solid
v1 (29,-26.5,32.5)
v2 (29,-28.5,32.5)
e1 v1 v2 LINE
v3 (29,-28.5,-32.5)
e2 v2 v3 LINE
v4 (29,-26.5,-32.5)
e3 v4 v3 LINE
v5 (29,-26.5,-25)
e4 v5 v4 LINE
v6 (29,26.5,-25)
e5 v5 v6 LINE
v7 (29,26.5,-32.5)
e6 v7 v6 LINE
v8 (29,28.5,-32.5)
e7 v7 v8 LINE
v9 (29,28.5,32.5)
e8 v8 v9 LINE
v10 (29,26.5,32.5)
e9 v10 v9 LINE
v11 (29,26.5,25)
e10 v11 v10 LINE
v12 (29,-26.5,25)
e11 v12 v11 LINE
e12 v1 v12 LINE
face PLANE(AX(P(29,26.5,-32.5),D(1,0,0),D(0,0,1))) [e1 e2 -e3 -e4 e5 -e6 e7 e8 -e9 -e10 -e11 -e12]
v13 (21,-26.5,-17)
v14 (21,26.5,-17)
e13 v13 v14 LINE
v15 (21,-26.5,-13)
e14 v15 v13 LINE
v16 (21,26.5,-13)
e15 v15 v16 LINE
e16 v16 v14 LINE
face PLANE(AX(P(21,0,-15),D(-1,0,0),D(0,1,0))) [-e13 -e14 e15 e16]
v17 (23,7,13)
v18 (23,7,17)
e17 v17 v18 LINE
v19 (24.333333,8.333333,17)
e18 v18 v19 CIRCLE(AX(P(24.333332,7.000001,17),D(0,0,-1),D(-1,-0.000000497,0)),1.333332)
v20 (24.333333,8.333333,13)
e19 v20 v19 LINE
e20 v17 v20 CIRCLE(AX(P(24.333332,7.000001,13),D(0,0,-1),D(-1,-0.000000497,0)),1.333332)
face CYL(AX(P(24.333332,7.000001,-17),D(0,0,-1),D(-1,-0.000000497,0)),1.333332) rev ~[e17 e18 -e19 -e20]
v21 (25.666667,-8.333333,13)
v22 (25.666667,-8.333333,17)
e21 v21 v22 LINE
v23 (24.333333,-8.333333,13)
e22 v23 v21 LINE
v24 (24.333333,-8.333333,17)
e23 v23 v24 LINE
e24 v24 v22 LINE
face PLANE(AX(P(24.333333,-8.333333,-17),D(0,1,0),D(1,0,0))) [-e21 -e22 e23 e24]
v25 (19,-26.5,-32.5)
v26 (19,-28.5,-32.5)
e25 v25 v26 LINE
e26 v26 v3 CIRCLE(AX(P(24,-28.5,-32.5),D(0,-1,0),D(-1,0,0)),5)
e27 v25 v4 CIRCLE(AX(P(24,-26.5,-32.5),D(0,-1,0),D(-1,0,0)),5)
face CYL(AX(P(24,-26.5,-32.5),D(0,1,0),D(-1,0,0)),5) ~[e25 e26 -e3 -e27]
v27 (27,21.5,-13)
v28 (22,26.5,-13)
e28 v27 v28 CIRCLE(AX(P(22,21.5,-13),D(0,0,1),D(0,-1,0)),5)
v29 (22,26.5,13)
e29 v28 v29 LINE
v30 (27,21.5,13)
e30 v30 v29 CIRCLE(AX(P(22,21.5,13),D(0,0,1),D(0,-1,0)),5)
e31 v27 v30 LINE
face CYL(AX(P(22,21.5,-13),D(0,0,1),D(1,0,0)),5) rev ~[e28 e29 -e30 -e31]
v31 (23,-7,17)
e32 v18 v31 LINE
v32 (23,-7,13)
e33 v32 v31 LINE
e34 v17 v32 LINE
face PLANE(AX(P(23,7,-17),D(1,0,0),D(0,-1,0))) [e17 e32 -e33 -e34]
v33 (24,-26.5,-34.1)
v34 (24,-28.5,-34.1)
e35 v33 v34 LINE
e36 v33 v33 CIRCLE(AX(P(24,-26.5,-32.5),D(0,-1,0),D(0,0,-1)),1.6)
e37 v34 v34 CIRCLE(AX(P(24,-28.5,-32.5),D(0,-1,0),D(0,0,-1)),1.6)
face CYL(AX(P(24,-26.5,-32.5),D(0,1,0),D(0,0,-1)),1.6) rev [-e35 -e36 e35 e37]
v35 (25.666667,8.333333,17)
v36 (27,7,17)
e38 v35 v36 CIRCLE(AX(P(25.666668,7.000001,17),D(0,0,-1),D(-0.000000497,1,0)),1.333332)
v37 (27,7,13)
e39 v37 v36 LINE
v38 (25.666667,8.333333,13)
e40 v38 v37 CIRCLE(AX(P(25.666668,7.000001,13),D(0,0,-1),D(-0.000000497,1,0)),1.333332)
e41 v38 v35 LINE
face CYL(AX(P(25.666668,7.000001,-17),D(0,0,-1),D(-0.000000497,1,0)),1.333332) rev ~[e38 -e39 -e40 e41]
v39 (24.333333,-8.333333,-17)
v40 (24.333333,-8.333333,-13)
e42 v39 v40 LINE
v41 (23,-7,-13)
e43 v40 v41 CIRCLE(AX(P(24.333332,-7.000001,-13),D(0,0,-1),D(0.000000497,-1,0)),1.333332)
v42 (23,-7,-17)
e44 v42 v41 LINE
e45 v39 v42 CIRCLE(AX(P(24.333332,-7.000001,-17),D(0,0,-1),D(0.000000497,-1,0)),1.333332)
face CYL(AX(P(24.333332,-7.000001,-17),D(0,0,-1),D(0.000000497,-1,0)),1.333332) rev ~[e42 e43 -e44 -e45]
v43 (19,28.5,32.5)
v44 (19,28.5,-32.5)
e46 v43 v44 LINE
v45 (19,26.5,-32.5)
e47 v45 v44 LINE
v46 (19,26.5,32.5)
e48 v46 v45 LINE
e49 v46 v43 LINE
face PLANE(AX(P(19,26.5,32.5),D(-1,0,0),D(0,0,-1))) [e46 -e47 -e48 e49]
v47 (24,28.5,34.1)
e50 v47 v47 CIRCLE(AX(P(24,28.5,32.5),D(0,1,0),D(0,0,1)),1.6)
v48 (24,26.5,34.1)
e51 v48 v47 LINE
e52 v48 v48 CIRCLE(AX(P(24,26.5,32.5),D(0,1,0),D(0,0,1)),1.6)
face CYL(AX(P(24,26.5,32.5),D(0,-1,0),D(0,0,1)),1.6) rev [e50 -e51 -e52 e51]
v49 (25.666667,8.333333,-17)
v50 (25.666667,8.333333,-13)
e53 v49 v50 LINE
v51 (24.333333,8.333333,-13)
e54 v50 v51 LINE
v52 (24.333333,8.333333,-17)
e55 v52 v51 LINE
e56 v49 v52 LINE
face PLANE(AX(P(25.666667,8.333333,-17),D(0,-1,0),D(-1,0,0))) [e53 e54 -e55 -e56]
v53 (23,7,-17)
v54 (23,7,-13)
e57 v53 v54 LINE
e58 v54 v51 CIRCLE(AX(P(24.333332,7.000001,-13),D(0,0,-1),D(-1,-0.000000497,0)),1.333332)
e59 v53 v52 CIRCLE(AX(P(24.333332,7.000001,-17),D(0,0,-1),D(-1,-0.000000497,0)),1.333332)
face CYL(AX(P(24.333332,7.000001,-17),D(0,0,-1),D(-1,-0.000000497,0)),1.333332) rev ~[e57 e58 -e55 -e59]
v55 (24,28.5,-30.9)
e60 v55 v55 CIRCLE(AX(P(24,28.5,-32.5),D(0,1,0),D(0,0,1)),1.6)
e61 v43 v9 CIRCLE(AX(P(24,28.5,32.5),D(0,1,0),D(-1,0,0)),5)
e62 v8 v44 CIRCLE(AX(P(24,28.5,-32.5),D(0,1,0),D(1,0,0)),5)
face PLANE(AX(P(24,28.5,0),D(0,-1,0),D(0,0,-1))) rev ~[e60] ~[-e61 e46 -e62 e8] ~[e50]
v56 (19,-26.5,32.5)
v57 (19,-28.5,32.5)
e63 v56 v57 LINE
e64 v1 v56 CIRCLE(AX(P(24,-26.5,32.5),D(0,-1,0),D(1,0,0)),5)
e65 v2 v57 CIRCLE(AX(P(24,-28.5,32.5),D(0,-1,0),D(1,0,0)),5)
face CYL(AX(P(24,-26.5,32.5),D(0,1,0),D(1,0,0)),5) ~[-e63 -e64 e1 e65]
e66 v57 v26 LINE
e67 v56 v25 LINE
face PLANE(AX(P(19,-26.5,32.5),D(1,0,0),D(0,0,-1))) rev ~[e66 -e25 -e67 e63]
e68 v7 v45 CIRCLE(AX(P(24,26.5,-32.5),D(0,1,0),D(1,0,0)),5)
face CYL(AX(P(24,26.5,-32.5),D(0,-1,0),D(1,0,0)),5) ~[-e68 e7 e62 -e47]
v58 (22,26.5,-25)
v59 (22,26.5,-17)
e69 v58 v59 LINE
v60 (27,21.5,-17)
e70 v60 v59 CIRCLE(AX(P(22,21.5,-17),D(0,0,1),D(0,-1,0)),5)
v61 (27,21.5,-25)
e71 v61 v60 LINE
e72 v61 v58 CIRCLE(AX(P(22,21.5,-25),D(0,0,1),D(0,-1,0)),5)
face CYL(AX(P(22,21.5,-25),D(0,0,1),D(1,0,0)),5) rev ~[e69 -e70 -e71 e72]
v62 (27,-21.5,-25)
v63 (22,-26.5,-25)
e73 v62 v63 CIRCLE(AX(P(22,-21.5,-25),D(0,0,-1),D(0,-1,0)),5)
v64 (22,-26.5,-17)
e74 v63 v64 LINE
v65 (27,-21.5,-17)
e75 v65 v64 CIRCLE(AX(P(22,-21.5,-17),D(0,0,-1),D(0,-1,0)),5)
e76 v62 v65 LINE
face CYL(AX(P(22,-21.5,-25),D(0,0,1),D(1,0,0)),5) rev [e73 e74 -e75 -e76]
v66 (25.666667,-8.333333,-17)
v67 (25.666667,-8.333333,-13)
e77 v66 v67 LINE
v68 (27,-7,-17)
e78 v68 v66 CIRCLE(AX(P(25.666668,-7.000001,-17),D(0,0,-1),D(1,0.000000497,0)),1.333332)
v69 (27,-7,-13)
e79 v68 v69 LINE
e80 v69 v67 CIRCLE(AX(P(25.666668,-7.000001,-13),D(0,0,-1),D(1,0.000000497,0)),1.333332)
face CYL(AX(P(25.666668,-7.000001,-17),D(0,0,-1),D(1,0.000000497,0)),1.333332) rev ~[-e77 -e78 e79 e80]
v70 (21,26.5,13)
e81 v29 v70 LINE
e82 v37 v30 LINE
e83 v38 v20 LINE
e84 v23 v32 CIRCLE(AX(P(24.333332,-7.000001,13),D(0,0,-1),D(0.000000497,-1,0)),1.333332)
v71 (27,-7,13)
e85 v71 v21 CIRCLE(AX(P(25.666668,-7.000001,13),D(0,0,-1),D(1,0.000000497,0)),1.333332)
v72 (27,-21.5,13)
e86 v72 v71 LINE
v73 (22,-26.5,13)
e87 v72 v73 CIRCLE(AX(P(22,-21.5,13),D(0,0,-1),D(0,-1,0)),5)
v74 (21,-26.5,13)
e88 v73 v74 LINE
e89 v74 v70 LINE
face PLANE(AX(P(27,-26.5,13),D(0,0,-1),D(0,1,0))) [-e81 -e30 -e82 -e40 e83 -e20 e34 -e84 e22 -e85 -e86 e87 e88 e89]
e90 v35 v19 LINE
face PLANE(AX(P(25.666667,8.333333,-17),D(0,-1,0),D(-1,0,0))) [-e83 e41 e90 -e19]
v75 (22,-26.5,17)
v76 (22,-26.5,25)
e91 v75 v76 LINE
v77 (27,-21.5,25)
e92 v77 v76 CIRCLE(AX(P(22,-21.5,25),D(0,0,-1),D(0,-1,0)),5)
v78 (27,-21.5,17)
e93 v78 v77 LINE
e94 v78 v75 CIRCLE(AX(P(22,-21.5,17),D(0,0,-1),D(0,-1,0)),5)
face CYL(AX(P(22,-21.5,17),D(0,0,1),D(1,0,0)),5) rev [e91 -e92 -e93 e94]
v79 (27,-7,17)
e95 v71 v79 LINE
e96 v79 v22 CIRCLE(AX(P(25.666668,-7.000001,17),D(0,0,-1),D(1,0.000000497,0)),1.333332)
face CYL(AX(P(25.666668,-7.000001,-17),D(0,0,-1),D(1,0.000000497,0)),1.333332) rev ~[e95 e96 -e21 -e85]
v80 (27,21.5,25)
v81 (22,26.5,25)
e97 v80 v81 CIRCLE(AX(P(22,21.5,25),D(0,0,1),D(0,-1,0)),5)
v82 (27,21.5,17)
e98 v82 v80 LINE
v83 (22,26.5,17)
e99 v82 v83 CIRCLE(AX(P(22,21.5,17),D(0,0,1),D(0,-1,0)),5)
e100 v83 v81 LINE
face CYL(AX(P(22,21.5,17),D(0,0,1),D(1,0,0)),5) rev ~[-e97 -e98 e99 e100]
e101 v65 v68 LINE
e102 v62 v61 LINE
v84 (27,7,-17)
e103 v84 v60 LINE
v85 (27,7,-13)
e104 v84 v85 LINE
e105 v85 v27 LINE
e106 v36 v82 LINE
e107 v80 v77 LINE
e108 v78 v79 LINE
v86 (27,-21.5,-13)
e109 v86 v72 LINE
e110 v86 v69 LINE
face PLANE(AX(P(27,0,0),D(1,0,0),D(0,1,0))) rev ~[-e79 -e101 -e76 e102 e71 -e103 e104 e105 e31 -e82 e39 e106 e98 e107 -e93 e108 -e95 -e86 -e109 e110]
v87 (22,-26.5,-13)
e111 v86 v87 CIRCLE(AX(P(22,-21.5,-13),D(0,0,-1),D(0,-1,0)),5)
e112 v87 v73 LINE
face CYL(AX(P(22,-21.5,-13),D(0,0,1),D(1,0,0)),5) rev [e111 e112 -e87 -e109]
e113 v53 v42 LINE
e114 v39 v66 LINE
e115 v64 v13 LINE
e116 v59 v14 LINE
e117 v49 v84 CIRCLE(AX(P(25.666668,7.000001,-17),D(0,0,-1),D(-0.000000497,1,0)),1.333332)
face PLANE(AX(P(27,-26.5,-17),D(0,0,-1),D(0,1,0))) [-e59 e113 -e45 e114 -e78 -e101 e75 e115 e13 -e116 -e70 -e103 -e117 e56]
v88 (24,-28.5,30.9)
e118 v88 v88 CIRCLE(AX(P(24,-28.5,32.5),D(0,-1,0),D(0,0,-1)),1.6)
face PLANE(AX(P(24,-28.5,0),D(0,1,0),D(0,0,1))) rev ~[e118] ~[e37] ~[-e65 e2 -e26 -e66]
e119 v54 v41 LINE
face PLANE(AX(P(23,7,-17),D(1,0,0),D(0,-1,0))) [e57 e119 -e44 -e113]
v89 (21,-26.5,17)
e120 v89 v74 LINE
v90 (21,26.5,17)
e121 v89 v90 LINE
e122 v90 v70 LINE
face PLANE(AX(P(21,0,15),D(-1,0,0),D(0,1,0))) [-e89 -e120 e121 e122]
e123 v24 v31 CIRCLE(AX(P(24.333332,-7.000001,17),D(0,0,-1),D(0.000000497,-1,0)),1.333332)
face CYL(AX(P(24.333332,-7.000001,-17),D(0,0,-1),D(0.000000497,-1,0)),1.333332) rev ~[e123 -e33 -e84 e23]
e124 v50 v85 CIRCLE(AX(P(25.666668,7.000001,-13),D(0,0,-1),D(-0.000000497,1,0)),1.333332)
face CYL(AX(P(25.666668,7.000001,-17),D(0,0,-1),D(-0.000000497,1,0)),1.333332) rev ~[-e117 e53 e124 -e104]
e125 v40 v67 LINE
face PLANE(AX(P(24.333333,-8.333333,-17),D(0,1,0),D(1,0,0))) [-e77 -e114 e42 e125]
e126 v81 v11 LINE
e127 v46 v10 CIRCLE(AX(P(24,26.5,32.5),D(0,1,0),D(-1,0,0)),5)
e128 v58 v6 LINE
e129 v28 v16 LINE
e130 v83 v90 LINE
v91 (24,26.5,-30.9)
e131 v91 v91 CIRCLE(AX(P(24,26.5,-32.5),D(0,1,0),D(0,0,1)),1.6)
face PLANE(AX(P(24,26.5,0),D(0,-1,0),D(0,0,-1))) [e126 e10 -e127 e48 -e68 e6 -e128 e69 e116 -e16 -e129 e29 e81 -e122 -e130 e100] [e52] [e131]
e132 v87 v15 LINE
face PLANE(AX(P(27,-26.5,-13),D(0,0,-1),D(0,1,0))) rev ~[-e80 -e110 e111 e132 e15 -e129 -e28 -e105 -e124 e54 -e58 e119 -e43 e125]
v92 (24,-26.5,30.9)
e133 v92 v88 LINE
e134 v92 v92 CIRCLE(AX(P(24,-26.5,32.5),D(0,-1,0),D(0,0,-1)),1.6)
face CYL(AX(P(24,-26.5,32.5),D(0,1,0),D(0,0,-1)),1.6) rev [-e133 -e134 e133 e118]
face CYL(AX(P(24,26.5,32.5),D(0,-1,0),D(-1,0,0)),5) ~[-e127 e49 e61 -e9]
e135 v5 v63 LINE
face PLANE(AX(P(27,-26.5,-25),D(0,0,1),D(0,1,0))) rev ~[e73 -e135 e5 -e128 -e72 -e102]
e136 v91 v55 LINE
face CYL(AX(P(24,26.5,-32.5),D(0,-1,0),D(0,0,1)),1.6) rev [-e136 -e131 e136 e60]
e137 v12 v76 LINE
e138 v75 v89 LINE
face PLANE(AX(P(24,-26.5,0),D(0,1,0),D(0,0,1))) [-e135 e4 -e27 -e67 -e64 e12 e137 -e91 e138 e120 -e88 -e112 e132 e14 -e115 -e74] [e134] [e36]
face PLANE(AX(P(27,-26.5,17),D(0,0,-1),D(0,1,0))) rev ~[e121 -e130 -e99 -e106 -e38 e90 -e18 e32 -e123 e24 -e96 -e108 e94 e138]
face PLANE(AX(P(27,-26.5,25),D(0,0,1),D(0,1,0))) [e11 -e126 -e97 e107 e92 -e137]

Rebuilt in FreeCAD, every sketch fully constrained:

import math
import FreeCAD as App
import Part
import Sketcher
from FreeCAD import Vector
Q = App.Units.Quantity


def edges_at(feature, points):
    """Names of the edges that pass closest to the given points."""
    edges = feature.Shape.Edges
    near = lambda p: min(range(len(edges)), key=lambda i: edges[i].distToShape(Part.Vertex(*p))[0])
    return sorted({f"Edge{near(p) + 1}" for p in points})


def add_polygon(sketch, points):
    """Adds a closed chain of lines whose ends are joined by coincident constraints."""
    first, n = sketch.GeometryCount, len(points)
    for a, b in zip(points, points[1:] + points[:1]):
        sketch.addGeometry(Part.LineSegment(App.Vector(*a, 0), App.Vector(*b, 0)), False)
    for i in range(n):
        sketch.addConstraint(Sketcher.Constraint("Coincident", first + i, 2, first + (i + 1) % n, 1))

doc = App.newDocument("Part")
body = doc.addObject("PartDesign::Body", "Body")

# Sketch on YZ plane
sketch1 = doc.addObject("Sketcher::SketchObject", "Sketch")
body.addObject(sketch1)
sketch1.AttachmentSupport = (doc.YZ_Plane, [""])
sketch1.MapMode = "FlatFace"
sketch1.AttachmentOffset = App.Placement(Vector(0, 0, 27), App.Rotation())
add_polygon(sketch1, [(-26.5, 25), (-26.5, -25), (26.5, -25), (26.5, 25)])  # lines 0-3
sketch1.addConstraint(Sketcher.Constraint("Vertical", 0))
sketch1.addConstraint(Sketcher.Constraint("Horizontal", 1))
sketch1.addConstraint(Sketcher.Constraint("Vertical", 2))
sketch1.addConstraint(Sketcher.Constraint("Horizontal", 3))
sketch1.addConstraint(Sketcher.Constraint("Symmetric", 0, 2, 2, 2, -1, 1))
sketch1.addConstraint(Sketcher.Constraint("DistanceX", 1, 1, 1, 2, Q("53 mm")))
sketch1.addConstraint(Sketcher.Constraint("DistanceY", 0, 2, 0, 1, Q("50 mm")))
pad1 = doc.addObject("PartDesign::Pad", "Pad")
body.addObject(pad1)
pad1.Profile = sketch1
pad1.Length = 2

# Sketch on XZ plane
sketch2 = doc.addObject("Sketcher::SketchObject", "Sketch001")
body.addObject(sketch2)
sketch2.AttachmentSupport = (doc.XZ_Plane, [""])
sketch2.MapMode = "FlatFace"
sketch2.AttachmentOffset = App.Placement(Vector(0, 0, 26.5), App.Rotation())
sketch2.addGeometry(Part.LineSegment(Vector(29, -32.5, 0), Vector(29, 32.5, 0)), False)
sketch2.addGeometry(Part.ArcOfCircle(Part.Circle(Vector(24, 32.5, 0), Vector(0, 0, 1), 5), math.radians(0), math.radians(180)), False)
sketch2.addGeometry(Part.LineSegment(Vector(19, 32.5, 0), Vector(19, -32.5, 0)), False)
sketch2.addGeometry(Part.ArcOfCircle(Part.Circle(Vector(24, -32.5, 0), Vector(0, 0, 1), 5), math.radians(180), math.radians(360)), False)
sketch2.addGeometry(Part.Circle(Vector(24, -32.5, 0), Vector(0, 0, 1), 1.6), False)
sketch2.addGeometry(Part.Circle(Vector(24, 32.5, 0), Vector(0, 0, 1), 1.6), False)
sketch2.addConstraint(Sketcher.Constraint("Tangent", 0, 2, 1, 1))
sketch2.addConstraint(Sketcher.Constraint("Tangent", 1, 2, 2, 1))
sketch2.addConstraint(Sketcher.Constraint("Tangent", 2, 2, 3, 1))
sketch2.addConstraint(Sketcher.Constraint("Tangent", 3, 2, 0, 1))
sketch2.addConstraint(Sketcher.Constraint("Vertical", 0))
sketch2.addConstraint(Sketcher.Constraint("Vertical", 2))
sketch2.addConstraint(Sketcher.Constraint("Coincident", 4, 3, 3, 3))
sketch2.addConstraint(Sketcher.Constraint("Coincident", 5, 3, 1, 3))
sketch2.addConstraint(Sketcher.Constraint("Equal", 4, 5))
sketch2.addConstraint(Sketcher.Constraint("Radius", 1, Q("5 mm")))
sketch2.addConstraint(Sketcher.Constraint("Diameter", 4, Q("3.2 mm")))
sketch2.addConstraint(Sketcher.Constraint("DistanceY", 0, 1, 0, 2, Q("65 mm")))
sketch2.addConstraint(Sketcher.Constraint("DistanceX", -1, 1, 1, 3, Q("24 mm")))
sketch2.addConstraint(Sketcher.Constraint("DistanceY", -1, 1, 1, 3, Q("32.5 mm")))
pad2 = doc.addObject("PartDesign::Pad", "Pad001")
body.addObject(pad2)
pad2.Profile = sketch2
pad2.Length = 2

# Sketch on XZ plane
sketch3 = doc.addObject("Sketcher::SketchObject", "Sketch002")
body.addObject(sketch3)
sketch3.AttachmentSupport = (doc.XZ_Plane, [""])
sketch3.MapMode = "FlatFace"
sketch3.AttachmentOffset = App.Placement(Vector(0, 0, -26.5), App.Rotation())
sketch3.addGeometry(Part.LineSegment(Vector(29, 32.5, 0), Vector(29, -32.5, 0)), False)
sketch3.addGeometry(Part.ArcOfCircle(Part.Circle(Vector(24, -32.5, 0), Vector(0, 0, 1), 5), math.radians(180), math.radians(360)), False)
sketch3.addGeometry(Part.LineSegment(Vector(19, -32.5, 0), Vector(19, 32.5, 0)), False)
sketch3.addGeometry(Part.ArcOfCircle(Part.Circle(Vector(24, 32.5, 0), Vector(0, 0, 1), 5), math.radians(0), math.radians(180)), False)
sketch3.addGeometry(Part.Circle(Vector(24, 32.5, 0), Vector(0, 0, 1), 1.6), False)
sketch3.addGeometry(Part.Circle(Vector(24, -32.5, 0), Vector(0, 0, 1), 1.6), False)
sketch3.addConstraint(Sketcher.Constraint("Tangent", 0, 2, 1, 2))
sketch3.addConstraint(Sketcher.Constraint("Tangent", 1, 1, 2, 1))
sketch3.addConstraint(Sketcher.Constraint("Tangent", 2, 2, 3, 2))
sketch3.addConstraint(Sketcher.Constraint("Tangent", 3, 1, 0, 1))
sketch3.addConstraint(Sketcher.Constraint("Vertical", 0))
sketch3.addConstraint(Sketcher.Constraint("Vertical", 2))
sketch3.addConstraint(Sketcher.Constraint("Coincident", 4, 3, 3, 3))
sketch3.addConstraint(Sketcher.Constraint("Coincident", 5, 3, 1, 3))
sketch3.addConstraint(Sketcher.Constraint("Equal", 4, 5))
sketch3.addConstraint(Sketcher.Constraint("Radius", 1, Q("5 mm")))
sketch3.addConstraint(Sketcher.Constraint("Diameter", 4, Q("3.2 mm")))
sketch3.addConstraint(Sketcher.Constraint("DistanceY", 0, 2, 0, 1, Q("65 mm")))
sketch3.addConstraint(Sketcher.Constraint("DistanceX", -1, 1, 1, 3, Q("24 mm")))
sketch3.addConstraint(Sketcher.Constraint("DistanceY", 1, 3, -1, 1, Q("32.5 mm")))
pad3 = doc.addObject("PartDesign::Pad", "Pad002")
body.addObject(pad3)
pad3.Profile = sketch3
pad3.Length = 2
pad3.Reversed = True

# Sketch on YZ plane
sketch4 = doc.addObject("Sketcher::SketchObject", "Sketch003")
body.addObject(sketch4)
sketch4.AttachmentSupport = (doc.YZ_Plane, [""])
sketch4.MapMode = "FlatFace"
sketch4.AttachmentOffset = App.Placement(Vector(0, 0, 27), App.Rotation())
add_polygon(sketch4, [(-26.5, 13), (-26.5, 17), (26.5, 17), (26.5, 13)])  # lines 0-3
add_polygon(sketch4, [(-26.5, -17), (-26.5, -13), (26.5, -13), (26.5, -17)])  # lines 4-7
sketch4.addConstraint(Sketcher.Constraint("Vertical", 0))
sketch4.addConstraint(Sketcher.Constraint("Horizontal", 1))
sketch4.addConstraint(Sketcher.Constraint("Vertical", 2))
sketch4.addConstraint(Sketcher.Constraint("Horizontal", 3))
sketch4.addConstraint(Sketcher.Constraint("Vertical", 4))
sketch4.addConstraint(Sketcher.Constraint("Horizontal", 5))
sketch4.addConstraint(Sketcher.Constraint("Vertical", 6))
sketch4.addConstraint(Sketcher.Constraint("Horizontal", 7))
sketch4.addConstraint(Sketcher.Constraint("Symmetric", 2, 2, 4, 2, -1, 1))
sketch4.addConstraint(Sketcher.Constraint("Symmetric", 0, 2, 6, 2, -1, 1))
sketch4.addConstraint(Sketcher.Constraint("Vertical", 3, 2, 4, 2))
sketch4.addConstraint(Sketcher.Constraint("DistanceX", 1, 1, 1, 2, Q("53 mm")))
sketch4.addConstraint(Sketcher.Constraint("DistanceY", 0, 1, 0, 2, Q("4 mm")))
sketch4.addConstraint(Sketcher.Constraint("DistanceY", -1, 1, 0, 2, Q("17 mm")))
pad4 = doc.addObject("PartDesign::Pad", "Pad003")
body.addObject(pad4)
pad4.Profile = sketch4
pad4.Length = 6
pad4.Reversed = True

# Sketch on XY plane
sketch5 = doc.addObject("Sketcher::SketchObject", "Sketch004")
body.addObject(sketch5)
sketch5.AttachmentSupport = (doc.XY_Plane, [""])
sketch5.MapMode = "FlatFace"
sketch5.AttachmentOffset = App.Placement(Vector(0, 0, -17), App.Rotation())
sketch5.addGeometry(Part.ArcOfCircle(Part.Circle(Vector(25.666668, -7.000001, 0), Vector(0, 0, 1), 1.333332), math.radians(-90.000028), math.radians(0.000028)), False)
sketch5.addGeometry(Part.LineSegment(Vector(25.666667, -8.333333, 0), Vector(24.333333, -8.333333, 0)), False)
sketch5.addGeometry(Part.ArcOfCircle(Part.Circle(Vector(24.333332, -7.000001, 0), Vector(0, 0, 1), 1.333332), math.radians(179.999972), math.radians(270.000028)), False)
sketch5.addGeometry(Part.LineSegment(Vector(23, -7, 0), Vector(23, 7, 0)), False)
sketch5.addGeometry(Part.ArcOfCircle(Part.Circle(Vector(24.333332, 7.000001, 0), Vector(0, 0, 1), 1.333332), math.radians(89.999972), math.radians(180.000028)), False)
sketch5.addGeometry(Part.LineSegment(Vector(24.333333, 8.333333, 0), Vector(25.666667, 8.333333, 0)), False)
sketch5.addGeometry(Part.ArcOfCircle(Part.Circle(Vector(25.666668, 7.000001, 0), Vector(0, 0, 1), 1.333332), math.radians(-0.000028), math.radians(90.000028)), False)
sketch5.addGeometry(Part.LineSegment(Vector(27, 7, 0), Vector(27, -7, 0)), False)
sketch5.addConstraint(Sketcher.Constraint("Tangent", 0, 1, 1, 1))
sketch5.addConstraint(Sketcher.Constraint("Tangent", 1, 2, 2, 2))
sketch5.addConstraint(Sketcher.Constraint("Tangent", 2, 1, 3, 1))
sketch5.addConstraint(Sketcher.Constraint("Tangent", 3, 2, 4, 2))
sketch5.addConstraint(Sketcher.Constraint("Tangent", 4, 1, 5, 1))
sketch5.addConstraint(Sketcher.Constraint("Tangent", 5, 2, 6, 2))
sketch5.addConstraint(Sketcher.Constraint("Tangent", 6, 1, 7, 1))
sketch5.addConstraint(Sketcher.Constraint("Tangent", 7, 2, 0, 2))
sketch5.addConstraint(Sketcher.Constraint("Horizontal", 1))
sketch5.addConstraint(Sketcher.Constraint("Vertical", 3))
sketch5.addConstraint(Sketcher.Constraint("Horizontal", 5))
sketch5.addConstraint(Sketcher.Constraint("Vertical", 7))
sketch5.addConstraint(Sketcher.Constraint("Equal", 0, 2))
sketch5.addConstraint(Sketcher.Constraint("Equal", 2, 4))
sketch5.addConstraint(Sketcher.Constraint("Equal", 4, 6))
sketch5.addConstraint(Sketcher.Constraint("DistanceY", 3, 1, 3, 2, Q("14 mm")))
sketch5.addConstraint(Sketcher.Constraint("DistanceY", 0, 3, -1, 1, Q("7.000001 mm")))
sketch5.addConstraint(Sketcher.Constraint("DistanceX", -1, 1, 2, 1, Q("23 mm")))
sketch5.addConstraint(Sketcher.Constraint("DistanceX", -1, 1, 6, 1, Q("27 mm")))
sketch5.addConstraint(Sketcher.Constraint("Radius", 0, Q("1.333332 mm")))
pocket1 = doc.addObject("PartDesign::Pocket", "Pocket")
body.addObject(pocket1)
pocket1.Profile = sketch5
pocket1.Length = 50
pocket1.Reversed = True
doc.recompute()

fillet = doc.addObject("PartDesign::Fillet", "Fillet")
body.addObject(fillet)
fillet.Base = (pocket1, edges_at(pocket1, [
    (27, 26.5, 0),
    (27, -26.5, 0),
    (27, 26.5, 21),
    (27, -26.5, 21),
    (27, -26.5, -21),
    (27, 26.5, -21),
]))
fillet.Radius = 5

doc.recompute()
